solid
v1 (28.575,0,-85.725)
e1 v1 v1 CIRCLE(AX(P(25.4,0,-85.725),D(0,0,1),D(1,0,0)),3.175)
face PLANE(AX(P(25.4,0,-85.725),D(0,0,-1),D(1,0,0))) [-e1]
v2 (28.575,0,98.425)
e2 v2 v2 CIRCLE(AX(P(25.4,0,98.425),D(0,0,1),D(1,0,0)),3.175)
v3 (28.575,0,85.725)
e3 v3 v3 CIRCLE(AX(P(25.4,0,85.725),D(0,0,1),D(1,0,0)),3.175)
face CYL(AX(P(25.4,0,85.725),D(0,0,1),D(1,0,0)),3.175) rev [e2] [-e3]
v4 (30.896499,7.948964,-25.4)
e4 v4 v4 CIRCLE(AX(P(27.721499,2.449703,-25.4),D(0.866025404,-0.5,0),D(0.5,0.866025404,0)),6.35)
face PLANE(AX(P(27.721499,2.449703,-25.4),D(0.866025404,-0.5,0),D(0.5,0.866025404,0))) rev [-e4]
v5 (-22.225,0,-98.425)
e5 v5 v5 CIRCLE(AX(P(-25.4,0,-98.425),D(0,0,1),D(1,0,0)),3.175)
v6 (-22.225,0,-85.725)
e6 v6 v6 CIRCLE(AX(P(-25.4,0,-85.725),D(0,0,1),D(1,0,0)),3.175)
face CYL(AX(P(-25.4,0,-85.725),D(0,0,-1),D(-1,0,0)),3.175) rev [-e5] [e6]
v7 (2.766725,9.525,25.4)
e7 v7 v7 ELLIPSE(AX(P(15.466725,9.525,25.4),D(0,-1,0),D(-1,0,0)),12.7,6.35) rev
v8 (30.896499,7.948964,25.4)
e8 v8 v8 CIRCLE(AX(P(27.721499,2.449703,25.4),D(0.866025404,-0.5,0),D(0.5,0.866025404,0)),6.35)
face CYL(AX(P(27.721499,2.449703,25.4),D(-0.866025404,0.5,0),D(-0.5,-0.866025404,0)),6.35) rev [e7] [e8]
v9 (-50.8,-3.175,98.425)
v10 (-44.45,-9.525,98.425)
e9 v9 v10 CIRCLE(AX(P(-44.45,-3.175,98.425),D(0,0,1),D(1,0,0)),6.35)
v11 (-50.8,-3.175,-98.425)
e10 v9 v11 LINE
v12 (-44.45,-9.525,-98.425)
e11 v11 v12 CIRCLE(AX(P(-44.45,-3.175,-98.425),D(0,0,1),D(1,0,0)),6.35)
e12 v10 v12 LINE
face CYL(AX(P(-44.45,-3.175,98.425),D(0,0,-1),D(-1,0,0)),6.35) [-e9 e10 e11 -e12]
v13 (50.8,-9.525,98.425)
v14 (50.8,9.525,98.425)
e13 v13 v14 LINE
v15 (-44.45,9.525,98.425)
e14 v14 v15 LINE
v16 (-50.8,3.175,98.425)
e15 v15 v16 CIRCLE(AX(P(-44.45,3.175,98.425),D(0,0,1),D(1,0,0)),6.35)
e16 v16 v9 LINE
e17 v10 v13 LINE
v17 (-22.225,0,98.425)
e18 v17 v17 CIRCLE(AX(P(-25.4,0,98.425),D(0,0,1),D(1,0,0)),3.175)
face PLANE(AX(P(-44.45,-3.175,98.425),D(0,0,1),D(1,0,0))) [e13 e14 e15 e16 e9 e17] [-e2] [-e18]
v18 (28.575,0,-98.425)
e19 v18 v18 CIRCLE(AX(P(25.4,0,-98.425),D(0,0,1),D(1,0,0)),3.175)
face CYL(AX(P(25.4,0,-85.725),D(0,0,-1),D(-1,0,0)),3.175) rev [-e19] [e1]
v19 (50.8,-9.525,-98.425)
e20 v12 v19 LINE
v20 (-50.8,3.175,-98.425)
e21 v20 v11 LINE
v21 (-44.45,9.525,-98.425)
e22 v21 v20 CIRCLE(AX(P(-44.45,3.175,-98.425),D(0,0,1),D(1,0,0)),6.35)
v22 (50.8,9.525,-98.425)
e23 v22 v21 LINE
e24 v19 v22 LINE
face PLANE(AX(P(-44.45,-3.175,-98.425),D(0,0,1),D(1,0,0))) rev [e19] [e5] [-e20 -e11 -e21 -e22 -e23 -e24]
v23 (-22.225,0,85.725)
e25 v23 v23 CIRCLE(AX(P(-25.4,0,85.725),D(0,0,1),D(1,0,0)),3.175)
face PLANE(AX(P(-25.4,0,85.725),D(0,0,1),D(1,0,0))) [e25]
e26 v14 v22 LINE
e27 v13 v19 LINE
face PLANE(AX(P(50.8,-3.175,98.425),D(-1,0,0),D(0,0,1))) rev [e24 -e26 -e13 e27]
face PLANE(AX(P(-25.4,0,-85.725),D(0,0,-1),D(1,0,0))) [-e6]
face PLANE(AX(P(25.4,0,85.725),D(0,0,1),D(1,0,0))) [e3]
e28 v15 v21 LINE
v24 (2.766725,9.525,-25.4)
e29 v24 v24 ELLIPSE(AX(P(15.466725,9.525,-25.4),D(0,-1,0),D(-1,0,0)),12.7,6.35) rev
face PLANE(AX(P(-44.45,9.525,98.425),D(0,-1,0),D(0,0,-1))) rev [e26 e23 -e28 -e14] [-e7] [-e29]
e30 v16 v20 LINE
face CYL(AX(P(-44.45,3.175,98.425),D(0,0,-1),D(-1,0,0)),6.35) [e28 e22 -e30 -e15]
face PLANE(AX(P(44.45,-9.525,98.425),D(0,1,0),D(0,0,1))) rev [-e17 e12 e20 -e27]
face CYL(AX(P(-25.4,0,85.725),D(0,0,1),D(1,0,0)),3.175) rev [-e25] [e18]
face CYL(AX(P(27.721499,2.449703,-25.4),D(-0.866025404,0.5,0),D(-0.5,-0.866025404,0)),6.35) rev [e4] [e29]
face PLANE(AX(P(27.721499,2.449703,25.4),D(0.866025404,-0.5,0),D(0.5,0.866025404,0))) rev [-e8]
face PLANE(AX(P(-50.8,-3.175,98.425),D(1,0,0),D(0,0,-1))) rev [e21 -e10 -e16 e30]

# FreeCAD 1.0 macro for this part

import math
import FreeCAD as App
import Part
import Sketcher
from FreeCAD import Vector
Q = App.Units.Quantity

doc = App.newDocument("Part")
body = doc.addObject("PartDesign::Body", "Body")

# Sketch on XY plane
sketch1 = doc.addObject("Sketcher::SketchObject", "Sketch")
body.addObject(sketch1)
sketch1.AttachmentSupport = (doc.XY_Plane, [""])
sketch1.MapMode = "FlatFace"
sketch1.addGeometry([
    Part.LineSegment(Vector(50.8, -9.525, 0), Vector(50.8, 9.525, 0)),  # 0
    Part.LineSegment(Vector(50.8, 9.525, 0), Vector(-44.45, 9.525, 0)),  # 1
    Part.ArcOfCircle(Part.Circle(Vector(-44.45, 3.175, 0), Vector(0, 0, 1), 6.35), math.radians(90), math.radians(180)),  # 2
    Part.LineSegment(Vector(-50.8, 3.175, 0), Vector(-50.8, -3.175, 0)),  # 3
    Part.ArcOfCircle(Part.Circle(Vector(-44.45, -3.175, 0), Vector(0, 0, 1), 6.35), math.radians(180), math.radians(270)),  # 4
    Part.LineSegment(Vector(-44.45, -9.525, 0), Vector(50.8, -9.525, 0)),  # 5
], False)
sketch1.addConstraint([
    Sketcher.Constraint("Coincident", 0, 2, 1, 1),
    Sketcher.Constraint("Tangent", 1, 2, 2, 1),
    Sketcher.Constraint("Tangent", 2, 2, 3, 1),
    Sketcher.Constraint("Tangent", 3, 2, 4, 1),
    Sketcher.Constraint("Tangent", 4, 2, 5, 1),
    Sketcher.Constraint("Coincident", 5, 2, 0, 1),
    Sketcher.Constraint("Vertical", 0),
    Sketcher.Constraint("Horizontal", 1),
    Sketcher.Constraint("Vertical", 3),
    Sketcher.Constraint("Horizontal", 5),
    Sketcher.Constraint("Equal", 2, 4),
    Sketcher.Constraint("Radius", 2, Q("0.25 in")),
    Sketcher.Constraint("DistanceX", -1, 1, 0, 2, Q("2 in")),
    Sketcher.Constraint("DistanceX", 2, 2, -1, 1, Q("2 in")),
    Sketcher.Constraint("DistanceY", 0, 1, 0, 2, Q("0.75 in")),
    Sketcher.Constraint("DistanceY", -1, 1, 2, 3, Q("0.125 in")),
])
pad1 = doc.addObject("PartDesign::Pad", "Pad")
body.addObject(pad1)
pad1.Profile = sketch1
pad1.Length = Q("7.75 in")
pad1.Midplane = True

# Sketch on XY plane
sketch2 = doc.addObject("Sketcher::SketchObject", "Sketch001")
body.addObject(sketch2)
sketch2.AttachmentSupport = (doc.XY_Plane, [""])
sketch2.MapMode = "FlatFace"
sketch2.AttachmentOffset = App.Placement(Vector(0, 0, 3.875 * 25.4), App.Rotation())
sketch2.addGeometry([
    Part.Circle(Vector(-25.4, 0, 0), Vector(0, 0, 1), 3.175),
    Part.Circle(Vector(25.4, 0, 0), Vector(0, 0, 1), 3.175),
], False)
sketch2.addConstraint([
    Sketcher.Constraint("Equal", 0, 1),
    Sketcher.Constraint("Symmetric", 0, 3, 1, 3, -1, 1),
    Sketcher.Constraint("PointOnObject", 0, 3, -1),
    Sketcher.Constraint("Diameter", 0, Q("0.25 in")),
    Sketcher.Constraint("DistanceX", 0, 3, -1, 1, Q("1 in")),
])
pocket1 = doc.addObject("PartDesign::Pocket", "Pocket")
body.addObject(pocket1)
pocket1.Profile = sketch2
pocket1.Length = Q("0.5 in")

# Sketch on an angled plane
sketch3 = doc.addObject("Sketcher::SketchObject", "Sketch002")
body.addObject(sketch3)
sketch3.Placement = App.Placement(Vector(-37.461946, 21.628665, 0), App.Rotation(Vector(0, 0, -1), Vector(0.5, 0.866025404, 0), Vector(0.866025404, -0.5, 0), "ZXY"))
sketch3.addGeometry([
    Part.Circle(Vector(-25.4, 15.982255, 0), Vector(0, 0, 1), 6.35),
    Part.Circle(Vector(25.4, 15.982255, 0), Vector(0, 0, 1), 6.35),
], False)
sketch3.addConstraint([
    Sketcher.Constraint("Equal", 0, 1),
    Sketcher.Constraint("Symmetric", 0, 3, 1, 3, -2),
    Sketcher.Constraint("Diameter", 0, Q("0.5 in")),
    Sketcher.Constraint("DistanceX", 0, 3, -1, 1, Q("1 in")),
    Sketcher.Constraint("DistanceY", -1, 1, 0, 3, Q("15.982255 mm")),
])
pocket2 = doc.addObject("PartDesign::Pocket", "Pocket001")
body.addObject(pocket2)
pocket2.Profile = sketch3
pocket2.Length = Q("2.6 in")
pocket2.Reversed = True
doc.recompute()

mirrored = doc.addObject("PartDesign::Mirrored", "Mirrored")
body.addObject(mirrored)
mirrored.Originals = [pocket1]
mirrored.MirrorPlane = (doc.XY_Plane, [""])
body.Tip = mirrored

doc.recompute()
